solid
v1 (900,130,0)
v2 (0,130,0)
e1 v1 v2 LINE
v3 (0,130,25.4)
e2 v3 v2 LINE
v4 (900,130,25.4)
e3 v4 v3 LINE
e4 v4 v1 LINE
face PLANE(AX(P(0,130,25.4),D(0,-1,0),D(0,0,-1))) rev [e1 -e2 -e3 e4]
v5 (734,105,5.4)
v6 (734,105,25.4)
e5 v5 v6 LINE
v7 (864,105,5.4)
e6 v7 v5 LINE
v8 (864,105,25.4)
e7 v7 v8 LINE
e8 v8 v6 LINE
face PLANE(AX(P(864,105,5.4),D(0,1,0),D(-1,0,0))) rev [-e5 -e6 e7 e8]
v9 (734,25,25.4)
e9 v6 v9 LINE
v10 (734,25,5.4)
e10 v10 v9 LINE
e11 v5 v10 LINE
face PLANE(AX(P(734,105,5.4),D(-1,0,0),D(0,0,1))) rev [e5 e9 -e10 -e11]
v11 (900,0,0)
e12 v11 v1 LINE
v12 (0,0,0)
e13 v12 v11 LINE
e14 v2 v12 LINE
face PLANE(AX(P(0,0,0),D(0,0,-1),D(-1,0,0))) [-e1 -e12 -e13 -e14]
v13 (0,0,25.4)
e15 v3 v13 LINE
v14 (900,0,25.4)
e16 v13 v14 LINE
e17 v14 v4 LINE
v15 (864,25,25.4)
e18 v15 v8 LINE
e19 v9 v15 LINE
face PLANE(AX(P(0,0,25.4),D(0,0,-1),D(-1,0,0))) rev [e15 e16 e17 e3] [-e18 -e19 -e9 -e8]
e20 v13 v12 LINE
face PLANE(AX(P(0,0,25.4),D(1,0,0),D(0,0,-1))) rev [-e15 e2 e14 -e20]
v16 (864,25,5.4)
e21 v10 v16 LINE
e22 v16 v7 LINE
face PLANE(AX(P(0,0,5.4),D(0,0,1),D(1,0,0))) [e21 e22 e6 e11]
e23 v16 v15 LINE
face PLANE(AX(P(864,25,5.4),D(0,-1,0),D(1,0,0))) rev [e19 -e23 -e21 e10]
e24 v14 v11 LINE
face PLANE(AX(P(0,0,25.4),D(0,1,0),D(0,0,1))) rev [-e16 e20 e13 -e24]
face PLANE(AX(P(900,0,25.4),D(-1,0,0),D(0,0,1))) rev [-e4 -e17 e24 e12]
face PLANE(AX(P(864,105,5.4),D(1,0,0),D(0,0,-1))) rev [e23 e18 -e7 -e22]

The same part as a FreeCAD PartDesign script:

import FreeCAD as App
import Part
import Sketcher

V = App.Vector


def add_polygon(sketch, points):
    """Adds a closed chain of lines whose ends are joined by coincident constraints."""
    first, n = sketch.GeometryCount, len(points)
    for a, b in zip(points, points[1:] + points[:1]):
        sketch.addGeometry(Part.LineSegment(App.Vector(*a, 0), App.Vector(*b, 0)), False)
    for i in range(n):
        sketch.addConstraint(Sketcher.Constraint("Coincident", first + i, 2, first + (i + 1) % n, 1))

doc = App.newDocument("Part")
body = doc.addObject("PartDesign::Body", "Body")

sketch1 = body.newObject("Sketcher::SketchObject", "Sketch")
sketch1.AttachmentSupport = (doc.getObject("XY_Plane"), [""])
sketch1.MapMode = "FlatFace"
add_polygon(sketch1, [(0, 130), (0, 0), (900, 0), (900, 130)])
sketch1.addConstraint([
    Sketcher.Constraint("Vertical", 0),
    Sketcher.Constraint("Horizontal", 1),
    Sketcher.Constraint("Vertical", 2),
    Sketcher.Constraint("Horizontal", 3),
    Sketcher.Constraint("Coincident", 0, 2, -1, 1),
    Sketcher.Constraint("DistanceX", 1, 1, 1, 2, 900.0),
    Sketcher.Constraint("DistanceY", 0, 2, 0, 1, 130.0),
])
pad1 = body.newObject("PartDesign::Pad", "Pad")
pad1.Profile = sketch1
pad1.Length = 25.4

sketch2 = body.newObject("Sketcher::SketchObject", "Sketch001")
sketch2.AttachmentSupport = (doc.getObject("XY_Plane"), [""])
sketch2.MapMode = "FlatFace"
sketch2.AttachmentOffset = App.Placement(V(0, 0, 25.4), App.Rotation())
add_polygon(sketch2, [(734, 105), (734, 25), (864, 25), (864, 105)])
sketch2.addConstraint([
    Sketcher.Constraint("Vertical", 0),
    Sketcher.Constraint("Horizontal", 1),
    Sketcher.Constraint("Vertical", 2),
    Sketcher.Constraint("Horizontal", 3),
    Sketcher.Constraint("DistanceX", 1, 1, 1, 2, 130.0),
    Sketcher.Constraint("DistanceY", 0, 2, 0, 1, 80.0),
    Sketcher.Constraint("DistanceX", -1, 1, 0, 2, 734.0),
    Sketcher.Constraint("DistanceY", -1, 1, 0, 2, 25.0),
])
pocket1 = body.newObject("PartDesign::Pocket", "Pocket")
pocket1.Profile = sketch2
pocket1.Length = 20

doc.recompute()
